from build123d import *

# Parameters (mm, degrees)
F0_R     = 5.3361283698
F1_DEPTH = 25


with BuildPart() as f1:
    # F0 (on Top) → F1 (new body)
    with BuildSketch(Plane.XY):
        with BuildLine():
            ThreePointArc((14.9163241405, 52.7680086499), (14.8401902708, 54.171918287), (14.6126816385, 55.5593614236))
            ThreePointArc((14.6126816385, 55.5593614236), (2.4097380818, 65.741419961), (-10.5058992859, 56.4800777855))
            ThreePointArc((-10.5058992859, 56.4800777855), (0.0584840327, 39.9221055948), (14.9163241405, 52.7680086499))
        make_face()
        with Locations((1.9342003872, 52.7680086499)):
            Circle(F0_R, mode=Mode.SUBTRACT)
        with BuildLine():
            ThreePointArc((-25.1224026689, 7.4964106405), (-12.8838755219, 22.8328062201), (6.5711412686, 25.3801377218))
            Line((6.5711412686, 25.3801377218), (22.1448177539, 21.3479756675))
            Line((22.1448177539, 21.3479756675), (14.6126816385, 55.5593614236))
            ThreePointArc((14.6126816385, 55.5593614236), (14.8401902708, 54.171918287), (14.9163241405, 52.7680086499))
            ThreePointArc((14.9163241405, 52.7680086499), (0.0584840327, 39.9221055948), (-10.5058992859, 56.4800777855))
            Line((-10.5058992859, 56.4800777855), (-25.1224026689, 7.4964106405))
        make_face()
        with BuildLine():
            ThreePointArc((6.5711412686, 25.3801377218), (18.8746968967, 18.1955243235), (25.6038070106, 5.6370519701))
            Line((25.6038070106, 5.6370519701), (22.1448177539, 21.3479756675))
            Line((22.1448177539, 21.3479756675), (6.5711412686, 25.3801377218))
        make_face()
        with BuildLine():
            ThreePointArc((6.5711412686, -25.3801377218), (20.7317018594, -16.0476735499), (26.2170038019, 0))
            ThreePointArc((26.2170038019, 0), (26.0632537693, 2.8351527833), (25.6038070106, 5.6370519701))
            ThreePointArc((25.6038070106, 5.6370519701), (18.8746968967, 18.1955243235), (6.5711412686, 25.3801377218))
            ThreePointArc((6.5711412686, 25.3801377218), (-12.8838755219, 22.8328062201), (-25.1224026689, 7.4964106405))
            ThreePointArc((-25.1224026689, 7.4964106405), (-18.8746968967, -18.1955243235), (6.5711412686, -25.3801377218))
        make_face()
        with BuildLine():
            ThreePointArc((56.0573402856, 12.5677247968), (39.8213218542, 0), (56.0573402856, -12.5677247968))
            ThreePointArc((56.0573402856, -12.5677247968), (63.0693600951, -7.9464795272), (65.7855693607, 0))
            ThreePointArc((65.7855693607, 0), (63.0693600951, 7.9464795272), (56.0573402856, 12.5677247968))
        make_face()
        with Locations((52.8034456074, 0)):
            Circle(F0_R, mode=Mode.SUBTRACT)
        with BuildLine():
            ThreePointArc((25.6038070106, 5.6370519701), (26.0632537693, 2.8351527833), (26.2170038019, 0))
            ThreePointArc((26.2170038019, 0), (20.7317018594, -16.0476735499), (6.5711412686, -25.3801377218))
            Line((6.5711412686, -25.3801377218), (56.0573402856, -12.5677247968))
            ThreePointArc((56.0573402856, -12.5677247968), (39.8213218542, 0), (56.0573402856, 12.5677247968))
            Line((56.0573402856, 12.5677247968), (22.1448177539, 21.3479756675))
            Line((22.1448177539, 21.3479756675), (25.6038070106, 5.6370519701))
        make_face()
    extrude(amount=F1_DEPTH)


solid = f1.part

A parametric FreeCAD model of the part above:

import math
import FreeCAD as App
import Part
import Sketcher
from FreeCAD import Vector

doc = App.newDocument("Part")
params = doc.addObject("Spreadsheet::Sheet", "Params")
for row, (alias, value) in enumerate([
    ("pad1_length", "25 mm"),
], start=1):
    params.set(f"A{row}", alias)
    params.set(f"B{row}", "=" + value)
    params.setAlias(f"B{row}", alias)

body = doc.addObject("PartDesign::Body", "Body")

# Sketch on XY plane
sketch1 = body.newObject("Sketcher::SketchObject", "Sketch")
sketch1.AttachmentSupport = (doc.getObject("XY_Plane"), [""])
sketch1.MapMode = "FlatFace"
sketch1.addGeometry(Part.ArcOfCircle(Part.Circle(Vector(1.9342, 52.768009, 0), Vector(0, 0, 1), 12.982124), math.radians(12.416414), math.radians(163.385136)), False)
sketch1.addGeometry(Part.LineSegment(Vector(-10.505899, 56.480078, 0), Vector(-25.122403, 7.496411, 0)), False)
sketch1.addGeometry(Part.ArcOfCircle(Part.Circle(Vector(0, 0, 0), Vector(0, 0, 1), 26.217004), math.radians(163.385136), math.radians(284.515639)), False)
sketch1.addGeometry(Part.LineSegment(Vector(6.571141, -25.380138, 0), Vector(56.05734, -12.567725, 0)), False)
sketch1.addGeometry(Part.ArcOfCircle(Part.Circle(Vector(52.803446, 0, 0), Vector(0, 0, 1), 12.982124), math.radians(-75.484361), math.radians(0)), False)
sketch1.addGeometry(Part.ArcOfCircle(Part.Circle(Vector(52.803446, 0, 0), Vector(0, 0, 1), 12.982124), math.radians(0), math.radians(75.484361)), False)
sketch1.addGeometry(Part.LineSegment(Vector(56.05734, 12.567725, 0), Vector(22.144818, 21.347976, 0)), False)
sketch1.addGeometry(Part.LineSegment(Vector(22.144818, 21.347976, 0), Vector(14.612682, 55.559361, 0)), False)
sketch1.addGeometry(Part.Circle(Vector(1.9342, 52.768009, 0), Vector(0, 0, 1), 5.336128), False)
sketch1.addGeometry(Part.Circle(Vector(52.803446, 0, 0), Vector(0, 0, 1), 5.336128), False)
sketch1.addConstraint(Sketcher.Constraint("Tangent", 0, 2, 1, 1))
sketch1.addConstraint(Sketcher.Constraint("Tangent", 1, 2, 2, 1))
sketch1.addConstraint(Sketcher.Constraint("Tangent", 2, 2, 3, 1))
sketch1.addConstraint(Sketcher.Constraint("Tangent", 3, 2, 4, 1))
sketch1.addConstraint(Sketcher.Constraint("Tangent", 4, 2, 5, 1))
sketch1.addConstraint(Sketcher.Constraint("Tangent", 5, 2, 6, 1))
sketch1.addConstraint(Sketcher.Constraint("Coincident", 6, 2, 7, 1))
sketch1.addConstraint(Sketcher.Constraint("Tangent", 7, 2, 0, 1))
sketch1.addConstraint(Sketcher.Constraint("Coincident", 2, 3, -1, 1))
sketch1.addConstraint(Sketcher.Constraint("Coincident", 8, 3, 0, 3))
sketch1.addConstraint(Sketcher.Constraint("Coincident", 9, 3, 4, 3))
sketch1.addConstraint(Sketcher.Constraint("Equal", 0, 4))
sketch1.addConstraint(Sketcher.Constraint("Equal", 4, 5))
sketch1.addConstraint(Sketcher.Constraint("Equal", 8, 9))
sketch1.addConstraint(Sketcher.Constraint("Symmetric", 3, 2, 5, 2, -1))
sketch1.addConstraint(Sketcher.Constraint("PointOnObject", 4, 2, -1))
sketch1.addConstraint(Sketcher.Constraint("Equal", 1, 3))
sketch1.addConstraint(Sketcher.Constraint("Equal", 6, 7))
sketch1.addConstraint(Sketcher.Constraint("Diameter", 8, 10.672257))
sketch1.addConstraint(Sketcher.Constraint("Radius", 0, 12.982124))
sketch1.addConstraint(Sketcher.Constraint("Radius", 2, 26.217004))
sketch1.addConstraint(Sketcher.Constraint("DistanceX", -1, 1, 0, 3, 1.9342))
sketch1.addConstraint(Sketcher.Constraint("DistanceY", 1, 2, 0, 3, 45.271598))
pad1 = body.newObject("PartDesign::Pad", "Pad")
pad1.Profile = sketch1
pad1.setExpression("Length", "Params.pad1_length")

doc.recompute()
